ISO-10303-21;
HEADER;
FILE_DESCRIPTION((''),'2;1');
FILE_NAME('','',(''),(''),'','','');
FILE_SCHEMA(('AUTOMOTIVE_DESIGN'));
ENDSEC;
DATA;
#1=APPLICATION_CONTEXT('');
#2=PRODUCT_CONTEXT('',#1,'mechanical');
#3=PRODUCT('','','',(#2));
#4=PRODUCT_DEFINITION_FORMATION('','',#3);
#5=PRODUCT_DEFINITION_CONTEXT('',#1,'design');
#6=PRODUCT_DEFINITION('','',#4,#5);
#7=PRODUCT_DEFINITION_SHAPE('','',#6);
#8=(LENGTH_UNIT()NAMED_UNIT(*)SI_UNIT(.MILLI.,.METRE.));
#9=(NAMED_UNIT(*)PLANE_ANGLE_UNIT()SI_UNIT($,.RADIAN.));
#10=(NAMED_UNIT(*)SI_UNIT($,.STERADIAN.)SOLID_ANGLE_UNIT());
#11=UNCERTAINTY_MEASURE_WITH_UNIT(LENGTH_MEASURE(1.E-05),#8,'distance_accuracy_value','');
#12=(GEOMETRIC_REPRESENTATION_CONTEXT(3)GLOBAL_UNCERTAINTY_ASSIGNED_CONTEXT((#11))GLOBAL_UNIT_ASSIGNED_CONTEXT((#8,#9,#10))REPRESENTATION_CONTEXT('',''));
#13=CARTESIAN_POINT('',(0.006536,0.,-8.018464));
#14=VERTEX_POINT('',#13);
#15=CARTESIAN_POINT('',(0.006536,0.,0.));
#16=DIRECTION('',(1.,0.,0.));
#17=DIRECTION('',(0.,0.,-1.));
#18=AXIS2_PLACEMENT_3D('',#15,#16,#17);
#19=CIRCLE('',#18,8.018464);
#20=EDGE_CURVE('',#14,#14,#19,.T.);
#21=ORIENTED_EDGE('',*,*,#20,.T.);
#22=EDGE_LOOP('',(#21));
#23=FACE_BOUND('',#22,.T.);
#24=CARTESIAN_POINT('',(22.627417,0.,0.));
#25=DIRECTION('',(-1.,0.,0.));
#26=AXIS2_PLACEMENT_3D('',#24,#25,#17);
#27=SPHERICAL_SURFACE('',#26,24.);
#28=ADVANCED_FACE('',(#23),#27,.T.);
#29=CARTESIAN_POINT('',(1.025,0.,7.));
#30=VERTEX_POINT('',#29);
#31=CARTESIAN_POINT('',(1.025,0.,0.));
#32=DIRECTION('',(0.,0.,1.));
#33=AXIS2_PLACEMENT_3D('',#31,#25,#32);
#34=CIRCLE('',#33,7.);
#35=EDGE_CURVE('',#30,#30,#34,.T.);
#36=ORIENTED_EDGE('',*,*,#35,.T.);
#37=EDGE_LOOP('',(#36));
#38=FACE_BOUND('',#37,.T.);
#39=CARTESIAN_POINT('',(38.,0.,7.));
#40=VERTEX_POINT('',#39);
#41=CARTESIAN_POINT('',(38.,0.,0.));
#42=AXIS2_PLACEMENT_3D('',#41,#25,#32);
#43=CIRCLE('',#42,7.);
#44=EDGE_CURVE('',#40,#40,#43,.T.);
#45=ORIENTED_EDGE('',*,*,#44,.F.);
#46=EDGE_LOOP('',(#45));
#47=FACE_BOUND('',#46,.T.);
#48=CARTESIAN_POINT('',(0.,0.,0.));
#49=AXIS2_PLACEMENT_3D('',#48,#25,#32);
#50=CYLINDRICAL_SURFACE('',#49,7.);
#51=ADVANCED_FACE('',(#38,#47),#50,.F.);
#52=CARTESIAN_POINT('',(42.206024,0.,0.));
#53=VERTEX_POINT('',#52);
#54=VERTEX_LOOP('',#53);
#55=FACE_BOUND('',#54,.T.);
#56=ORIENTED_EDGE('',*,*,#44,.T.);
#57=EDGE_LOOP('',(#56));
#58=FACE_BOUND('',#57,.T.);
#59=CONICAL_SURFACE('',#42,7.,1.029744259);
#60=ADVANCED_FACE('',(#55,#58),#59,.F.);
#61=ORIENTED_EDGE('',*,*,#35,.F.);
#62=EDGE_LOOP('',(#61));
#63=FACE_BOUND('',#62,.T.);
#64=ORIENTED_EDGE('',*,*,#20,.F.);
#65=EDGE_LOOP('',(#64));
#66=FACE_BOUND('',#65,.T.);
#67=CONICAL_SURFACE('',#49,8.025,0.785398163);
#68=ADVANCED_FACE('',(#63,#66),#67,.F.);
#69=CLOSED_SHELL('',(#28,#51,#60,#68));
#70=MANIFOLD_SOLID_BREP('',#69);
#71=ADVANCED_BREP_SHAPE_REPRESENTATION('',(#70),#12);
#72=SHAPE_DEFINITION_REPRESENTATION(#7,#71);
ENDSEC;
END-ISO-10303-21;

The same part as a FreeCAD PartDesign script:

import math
import FreeCAD as App
import Part
import Sketcher

V = App.Vector
Q = App.Units.Quantity

doc = App.newDocument("Part")
body = doc.addObject("PartDesign::Body", "Body")

# Sketch on XZ plane
sketch1 = doc.addObject("Sketcher::SketchObject", "Sketch")
body.addObject(sketch1)
sketch1.AttachmentSupport = (doc.XZ_Plane, [""])
sketch1.MapMode = "FlatFace"
sketch1.addGeometry([
    Part.LineSegment(V(0, 0, 0), V(47, 0, 0)),
    Part.ArcOfCircle(Part.Circle(V(23, 0, 0), V(0, 0, 1), 24), math.radians(-161), math.radians(0)),
    Part.LineSegment(V(0, -8, 0), V(0, 0, 0)),
], False)
sketch1.addConstraint([
    Sketcher.Constraint("Coincident", 0, 2, 1, 2),
    Sketcher.Constraint("Coincident", 1, 1, 2, 1),
    Sketcher.Constraint("Coincident", 2, 2, 0, 1),
    Sketcher.Constraint("Horizontal", 0),
    Sketcher.Constraint("Vertical", 2),
    Sketcher.Constraint("Coincident", 2, 2, -1, 1),
    Sketcher.Constraint("PointOnObject", 1, 3, -1),
    Sketcher.Constraint("Radius", 1, Q("24 mm")),
    Sketcher.Constraint("DistanceY", 2, 1, 2, 2, Q("8 mm")),
])
revolution = doc.addObject("PartDesign::Revolution", "Revolution")
body.addObject(revolution)
revolution.Profile = sketch1
revolution.ReferenceAxis = (sketch1, ["H_Axis"])
revolution.Angle = 360

# Sketch on YZ plane
sketch2 = doc.addObject("Sketcher::SketchObject", "Sketch001")
body.addObject(sketch2)
sketch2.AttachmentSupport = (doc.YZ_Plane, [""])
sketch2.MapMode = "FlatFace"
sketch2.addGeometry(Part.Circle(V(0, 0, 0), V(0, 0, 1), 7), False)
sketch2.addConstraint([
    Sketcher.Constraint("Coincident", 0, 3, -1, 1),
    Sketcher.Constraint("Diameter", 0, Q("14 mm")),
])
doc.recompute()
hole = doc.addObject("PartDesign::Hole", "Hole")
body.addObject(hole)
hole.Profile = sketch2
hole.ThreadType = "None"
hole.Diameter = 14
hole.DepthType = "Dimension"
hole.Depth = 38
hole.DrillPoint = "Angled"
hole.DrillPointAngle = 118
hole.HoleCutType = "Countersink"
hole.HoleCutDiameter = 16.05
hole.HoleCutCountersinkAngle = 90
hole.Reversed = True

doc.recompute()
